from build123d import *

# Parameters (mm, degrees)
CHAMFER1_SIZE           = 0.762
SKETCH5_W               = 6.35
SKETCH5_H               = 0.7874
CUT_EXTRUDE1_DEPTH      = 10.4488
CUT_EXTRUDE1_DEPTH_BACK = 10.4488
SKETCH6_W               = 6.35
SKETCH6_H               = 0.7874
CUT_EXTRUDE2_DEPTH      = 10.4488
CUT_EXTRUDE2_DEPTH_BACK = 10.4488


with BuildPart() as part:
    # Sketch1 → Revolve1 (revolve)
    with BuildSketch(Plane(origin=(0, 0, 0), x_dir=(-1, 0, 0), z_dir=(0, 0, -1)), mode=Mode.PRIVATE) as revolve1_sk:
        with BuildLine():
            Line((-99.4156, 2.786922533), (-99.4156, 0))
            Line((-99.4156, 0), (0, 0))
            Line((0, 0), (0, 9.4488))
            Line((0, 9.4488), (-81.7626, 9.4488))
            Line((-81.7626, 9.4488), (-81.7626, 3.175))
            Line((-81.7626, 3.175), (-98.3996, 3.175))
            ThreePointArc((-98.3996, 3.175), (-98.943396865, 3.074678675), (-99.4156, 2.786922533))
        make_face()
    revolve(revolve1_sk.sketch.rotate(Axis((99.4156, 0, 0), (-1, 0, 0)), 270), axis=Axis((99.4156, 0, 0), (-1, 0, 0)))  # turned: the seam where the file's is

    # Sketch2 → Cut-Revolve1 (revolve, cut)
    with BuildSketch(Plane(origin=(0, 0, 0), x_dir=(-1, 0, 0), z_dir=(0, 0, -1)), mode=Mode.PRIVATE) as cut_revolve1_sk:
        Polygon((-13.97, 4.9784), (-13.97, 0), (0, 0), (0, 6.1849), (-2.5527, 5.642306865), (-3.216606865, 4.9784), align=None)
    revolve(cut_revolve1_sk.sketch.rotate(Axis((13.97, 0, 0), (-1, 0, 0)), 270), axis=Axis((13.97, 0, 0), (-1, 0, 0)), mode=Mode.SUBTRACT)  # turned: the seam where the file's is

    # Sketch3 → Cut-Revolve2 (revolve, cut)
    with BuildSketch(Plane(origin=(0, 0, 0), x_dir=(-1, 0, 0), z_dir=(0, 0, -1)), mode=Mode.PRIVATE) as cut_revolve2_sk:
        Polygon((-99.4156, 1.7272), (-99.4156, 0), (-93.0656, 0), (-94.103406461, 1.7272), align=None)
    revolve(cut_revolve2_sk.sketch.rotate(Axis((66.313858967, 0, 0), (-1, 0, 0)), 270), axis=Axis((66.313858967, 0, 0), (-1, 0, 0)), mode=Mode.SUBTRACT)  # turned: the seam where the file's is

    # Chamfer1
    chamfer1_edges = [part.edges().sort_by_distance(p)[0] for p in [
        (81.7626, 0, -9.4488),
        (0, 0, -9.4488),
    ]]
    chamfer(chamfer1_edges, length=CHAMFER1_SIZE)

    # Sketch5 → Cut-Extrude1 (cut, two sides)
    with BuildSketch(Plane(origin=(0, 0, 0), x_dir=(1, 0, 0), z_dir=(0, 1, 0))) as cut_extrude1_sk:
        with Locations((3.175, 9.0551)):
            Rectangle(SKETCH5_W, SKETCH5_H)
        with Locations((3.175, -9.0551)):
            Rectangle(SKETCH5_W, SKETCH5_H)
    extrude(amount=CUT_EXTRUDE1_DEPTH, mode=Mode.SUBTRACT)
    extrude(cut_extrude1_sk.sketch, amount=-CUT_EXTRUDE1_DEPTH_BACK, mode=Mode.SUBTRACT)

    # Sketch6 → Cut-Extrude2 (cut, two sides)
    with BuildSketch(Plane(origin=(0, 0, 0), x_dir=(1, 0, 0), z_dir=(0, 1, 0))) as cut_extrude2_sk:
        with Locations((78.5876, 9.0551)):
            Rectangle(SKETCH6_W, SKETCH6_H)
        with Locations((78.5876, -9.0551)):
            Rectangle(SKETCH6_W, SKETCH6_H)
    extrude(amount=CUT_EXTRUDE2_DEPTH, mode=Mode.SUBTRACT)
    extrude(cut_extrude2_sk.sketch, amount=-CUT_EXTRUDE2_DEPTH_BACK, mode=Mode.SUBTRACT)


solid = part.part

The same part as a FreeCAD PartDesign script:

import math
import FreeCAD as App
import Part
import Sketcher

V = App.Vector
Q = App.Units.Quantity


def edges_at(feature, points):
    """Names of the edges that pass closest to the given points."""
    edges = feature.Shape.Edges
    near = lambda p: min(range(len(edges)), key=lambda i: edges[i].distToShape(Part.Vertex(*p))[0])
    return sorted({f"Edge{near(p) + 1}" for p in points})


def add_polygon(sketch, points):
    """Adds a closed chain of lines whose ends are joined by coincident constraints."""
    first, n = sketch.GeometryCount, len(points)
    for a, b in zip(points, points[1:] + points[:1]):
        sketch.addGeometry(Part.LineSegment(App.Vector(*a, 0), App.Vector(*b, 0)), False)
    for i in range(n):
        sketch.addConstraint(Sketcher.Constraint("Coincident", first + i, 2, first + (i + 1) % n, 1))

doc = App.newDocument("Part")
body = doc.addObject("PartDesign::Body", "Body")

# Sketch on XY plane
sketch1 = body.newObject("Sketcher::SketchObject", "Sketch")
sketch1.AttachmentSupport = (doc.getObject("XY_Plane"), [""])
sketch1.MapMode = "FlatFace"
sketch1.addGeometry([
    Part.LineSegment(V(99.4, 2.8, 0), V(99.4, 0, 0)),  # 0
    Part.LineSegment(V(99.4, 0, 0), V(0, 0, 0)),  # 1
    Part.LineSegment(V(0, 0, 0), V(0, 9.4, 0)),  # 2
    Part.LineSegment(V(0, 9.4, 0), V(81.8, 9.4, 0)),  # 3
    Part.LineSegment(V(81.8, 9.4, 0), V(81.8, 3.2, 0)),  # 4
    Part.LineSegment(V(81.8, 3.2, 0), V(98.4, 3.2, 0)),  # 5
    Part.ArcOfCircle(Part.Circle(V(98.4, 1.7, 0), V(0, 0, 1), 1.5), math.radians(48), math.radians(90)),  # 6
], False)
sketch1.addConstraint([
    Sketcher.Constraint("Coincident", 0, 2, 1, 1),
    Sketcher.Constraint("Coincident", 1, 2, 2, 1),
    Sketcher.Constraint("Coincident", 2, 2, 3, 1),
    Sketcher.Constraint("Coincident", 3, 2, 4, 1),
    Sketcher.Constraint("Coincident", 4, 2, 5, 1),
    Sketcher.Constraint("Tangent", 5, 2, 6, 2),
    Sketcher.Constraint("Coincident", 6, 1, 0, 1),
    Sketcher.Constraint("Vertical", 0),
    Sketcher.Constraint("Horizontal", 1),
    Sketcher.Constraint("Vertical", 2),
    Sketcher.Constraint("Horizontal", 3),
    Sketcher.Constraint("Vertical", 4),
    Sketcher.Constraint("Horizontal", 5),
    Sketcher.Constraint("Coincident", 1, 2, -1, 1),
    Sketcher.Constraint("Radius", 6, Q("0.06 in")),
    Sketcher.Constraint("DistanceX", 1, 2, 1, 1, Q("3.914 in")),
    Sketcher.Constraint("DistanceX", 3, 1, 3, 2, Q("3.219 in")),
    Sketcher.Constraint("DistanceX", 5, 1, 5, 2, Q("0.655 in")),
    Sketcher.Constraint("DistanceY", 2, 1, 2, 2, Q("0.372 in")),
    Sketcher.Constraint("DistanceY", 4, 2, 4, 1, Q("0.247 in")),
])
revolution = body.newObject("PartDesign::Revolution", "Revolution")
revolution.Profile = sketch1
revolution.ReferenceAxis = (sketch1, ["H_Axis"])
revolution.Angle = 360

# Sketch on XY plane
sketch2 = body.newObject("Sketcher::SketchObject", "Sketch001")
sketch2.AttachmentSupport = (doc.getObject("XY_Plane"), [""])
sketch2.MapMode = "FlatFace"
add_polygon(sketch2, [(14, 5), (14, 0), (0, 0), (0, 6.2), (2.6, 5.6), (3.2, 5)])  # lines 0-5
sketch2.addConstraint([
    Sketcher.Constraint("Vertical", 0),
    Sketcher.Constraint("Horizontal", 1),
    Sketcher.Constraint("Vertical", 2),
    Sketcher.Constraint("Horizontal", 5),
    Sketcher.Constraint("Coincident", 1, 2, -1, 1),
    Sketcher.Constraint("Angle", 3, Q("-12 deg")),
    Sketcher.Constraint("Angle", 4, Q("-45 deg")),
    Sketcher.Constraint("DistanceX", 1, 2, 1, 1, Q("0.55 in")),
    Sketcher.Constraint("DistanceY", 0, 2, 0, 1, Q("0.196 in")),
    Sketcher.Constraint("DistanceY", 2, 1, 2, 2, Q("0.2435 in")),
    Sketcher.Constraint("DistanceX", -1, 1, 3, 2, Q("0.1005 in")),
])
groove = body.newObject("PartDesign::Groove", "Groove")
groove.Profile = sketch2
groove.ReferenceAxis = (sketch2, ["H_Axis"])
groove.Angle = 360

# Sketch on XY plane
sketch3 = body.newObject("Sketcher::SketchObject", "Sketch002")
sketch3.AttachmentSupport = (doc.getObject("XY_Plane"), [""])
sketch3.MapMode = "FlatFace"
add_polygon(sketch3, [(99.4, 1.7), (99.4, 0), (93.1, 0), (94.1, 1.7)])  # lines 0-3
sketch3.addConstraint([
    Sketcher.Constraint("Vertical", 0),
    Sketcher.Constraint("Horizontal", 1),
    Sketcher.Constraint("Horizontal", 3),
    Sketcher.Constraint("PointOnObject", 0, 2, -1),
    Sketcher.Constraint("Angle", 2, Q("59 deg")),
    Sketcher.Constraint("DistanceX", 1, 2, 1, 1, Q("0.25 in")),
    Sketcher.Constraint("DistanceY", 0, 2, 0, 1, Q("0.068 in")),
    Sketcher.Constraint("DistanceX", -1, 1, 0, 2, Q("3.914 in")),
])
groove2 = body.newObject("PartDesign::Groove", "Groove001")
groove2.Profile = sketch3
groove2.ReferenceAxis = (sketch3, ["H_Axis"])
groove2.Angle = 360
doc.recompute()

chamfer = body.newObject("PartDesign::Chamfer", "Chamfer")
chamfer.Base = (groove2, edges_at(groove2, [(81.763, 0, -9.449), (0, 0, -9.449)]))
chamfer.Size = Q("0.03 in")

# Sketch on XZ plane
sketch4 = body.newObject("Sketcher::SketchObject", "Sketch003")
sketch4.AttachmentSupport = (doc.getObject("XZ_Plane"), [""])
sketch4.MapMode = "FlatFace"
add_polygon(sketch4, [(0, -9.4), (0, -8.7), (6.3, -8.7), (6.3, -9.4)])  # lines 0-3
add_polygon(sketch4, [(0, 8.7), (0, 9.4), (6.3, 9.4), (6.3, 8.7)])  # lines 4-7
sketch4.addConstraint([
    Sketcher.Constraint("Vertical", 0),
    Sketcher.Constraint("Horizontal", 1),
    Sketcher.Constraint("Vertical", 2),
    Sketcher.Constraint("Horizontal", 3),
    Sketcher.Constraint("Vertical", 4),
    Sketcher.Constraint("Horizontal", 5),
    Sketcher.Constraint("Vertical", 6),
    Sketcher.Constraint("Horizontal", 7),
    Sketcher.Constraint("Symmetric", 3, 2, 4, 2, -1, 1),
    Sketcher.Constraint("Symmetric", 1, 2, 6, 2, -1),
    Sketcher.Constraint("PointOnObject", 0, 2, -2),
    Sketcher.Constraint("DistanceX", 1, 1, 1, 2, Q("0.25 in")),
    Sketcher.Constraint("DistanceY", 0, 1, 0, 2, Q("0.031 in")),
    Sketcher.Constraint("DistanceY", 0, 2, -1, 1, Q("0.341 in")),
])
pocket1 = body.newObject("PartDesign::Pocket", "Pocket")
pocket1.Profile = sketch4
pocket1.Type = "ThroughAll"
pocket1.Midplane = True

# Sketch on XZ plane
sketch5 = body.newObject("Sketcher::SketchObject", "Sketch004")
sketch5.AttachmentSupport = (doc.getObject("XZ_Plane"), [""])
sketch5.MapMode = "FlatFace"
add_polygon(sketch5, [(75.4, -9.4), (75.4, -8.7), (81.8, -8.7), (81.8, -9.4)])  # lines 0-3
add_polygon(sketch5, [(75.4, 8.7), (75.4, 9.4), (81.8, 9.4), (81.8, 8.7)])  # lines 4-7
sketch5.addConstraint([
    Sketcher.Constraint("Vertical", 0),
    Sketcher.Constraint("Horizontal", 1),
    Sketcher.Constraint("Vertical", 2),
    Sketcher.Constraint("Horizontal", 3),
    Sketcher.Constraint("Vertical", 4),
    Sketcher.Constraint("Horizontal", 5),
    Sketcher.Constraint("Vertical", 6),
    Sketcher.Constraint("Horizontal", 7),
    Sketcher.Constraint("Symmetric", 3, 2, 4, 2, -1),
    Sketcher.Constraint("Symmetric", 1, 2, 6, 2, -1),
    Sketcher.Constraint("DistanceX", 1, 1, 1, 2, Q("0.25 in")),
    Sketcher.Constraint("DistanceY", 0, 1, 0, 2, Q("0.031 in")),
    Sketcher.Constraint("DistanceX", -1, 1, 0, 2, Q("2.969 in")),
    Sketcher.Constraint("DistanceY", 0, 2, -1, 1, Q("0.341 in")),
])
pocket2 = body.newObject("PartDesign::Pocket", "Pocket001")
pocket2.Profile = sketch5
pocket2.Type = "ThroughAll"
pocket2.Midplane = True

doc.recompute()
